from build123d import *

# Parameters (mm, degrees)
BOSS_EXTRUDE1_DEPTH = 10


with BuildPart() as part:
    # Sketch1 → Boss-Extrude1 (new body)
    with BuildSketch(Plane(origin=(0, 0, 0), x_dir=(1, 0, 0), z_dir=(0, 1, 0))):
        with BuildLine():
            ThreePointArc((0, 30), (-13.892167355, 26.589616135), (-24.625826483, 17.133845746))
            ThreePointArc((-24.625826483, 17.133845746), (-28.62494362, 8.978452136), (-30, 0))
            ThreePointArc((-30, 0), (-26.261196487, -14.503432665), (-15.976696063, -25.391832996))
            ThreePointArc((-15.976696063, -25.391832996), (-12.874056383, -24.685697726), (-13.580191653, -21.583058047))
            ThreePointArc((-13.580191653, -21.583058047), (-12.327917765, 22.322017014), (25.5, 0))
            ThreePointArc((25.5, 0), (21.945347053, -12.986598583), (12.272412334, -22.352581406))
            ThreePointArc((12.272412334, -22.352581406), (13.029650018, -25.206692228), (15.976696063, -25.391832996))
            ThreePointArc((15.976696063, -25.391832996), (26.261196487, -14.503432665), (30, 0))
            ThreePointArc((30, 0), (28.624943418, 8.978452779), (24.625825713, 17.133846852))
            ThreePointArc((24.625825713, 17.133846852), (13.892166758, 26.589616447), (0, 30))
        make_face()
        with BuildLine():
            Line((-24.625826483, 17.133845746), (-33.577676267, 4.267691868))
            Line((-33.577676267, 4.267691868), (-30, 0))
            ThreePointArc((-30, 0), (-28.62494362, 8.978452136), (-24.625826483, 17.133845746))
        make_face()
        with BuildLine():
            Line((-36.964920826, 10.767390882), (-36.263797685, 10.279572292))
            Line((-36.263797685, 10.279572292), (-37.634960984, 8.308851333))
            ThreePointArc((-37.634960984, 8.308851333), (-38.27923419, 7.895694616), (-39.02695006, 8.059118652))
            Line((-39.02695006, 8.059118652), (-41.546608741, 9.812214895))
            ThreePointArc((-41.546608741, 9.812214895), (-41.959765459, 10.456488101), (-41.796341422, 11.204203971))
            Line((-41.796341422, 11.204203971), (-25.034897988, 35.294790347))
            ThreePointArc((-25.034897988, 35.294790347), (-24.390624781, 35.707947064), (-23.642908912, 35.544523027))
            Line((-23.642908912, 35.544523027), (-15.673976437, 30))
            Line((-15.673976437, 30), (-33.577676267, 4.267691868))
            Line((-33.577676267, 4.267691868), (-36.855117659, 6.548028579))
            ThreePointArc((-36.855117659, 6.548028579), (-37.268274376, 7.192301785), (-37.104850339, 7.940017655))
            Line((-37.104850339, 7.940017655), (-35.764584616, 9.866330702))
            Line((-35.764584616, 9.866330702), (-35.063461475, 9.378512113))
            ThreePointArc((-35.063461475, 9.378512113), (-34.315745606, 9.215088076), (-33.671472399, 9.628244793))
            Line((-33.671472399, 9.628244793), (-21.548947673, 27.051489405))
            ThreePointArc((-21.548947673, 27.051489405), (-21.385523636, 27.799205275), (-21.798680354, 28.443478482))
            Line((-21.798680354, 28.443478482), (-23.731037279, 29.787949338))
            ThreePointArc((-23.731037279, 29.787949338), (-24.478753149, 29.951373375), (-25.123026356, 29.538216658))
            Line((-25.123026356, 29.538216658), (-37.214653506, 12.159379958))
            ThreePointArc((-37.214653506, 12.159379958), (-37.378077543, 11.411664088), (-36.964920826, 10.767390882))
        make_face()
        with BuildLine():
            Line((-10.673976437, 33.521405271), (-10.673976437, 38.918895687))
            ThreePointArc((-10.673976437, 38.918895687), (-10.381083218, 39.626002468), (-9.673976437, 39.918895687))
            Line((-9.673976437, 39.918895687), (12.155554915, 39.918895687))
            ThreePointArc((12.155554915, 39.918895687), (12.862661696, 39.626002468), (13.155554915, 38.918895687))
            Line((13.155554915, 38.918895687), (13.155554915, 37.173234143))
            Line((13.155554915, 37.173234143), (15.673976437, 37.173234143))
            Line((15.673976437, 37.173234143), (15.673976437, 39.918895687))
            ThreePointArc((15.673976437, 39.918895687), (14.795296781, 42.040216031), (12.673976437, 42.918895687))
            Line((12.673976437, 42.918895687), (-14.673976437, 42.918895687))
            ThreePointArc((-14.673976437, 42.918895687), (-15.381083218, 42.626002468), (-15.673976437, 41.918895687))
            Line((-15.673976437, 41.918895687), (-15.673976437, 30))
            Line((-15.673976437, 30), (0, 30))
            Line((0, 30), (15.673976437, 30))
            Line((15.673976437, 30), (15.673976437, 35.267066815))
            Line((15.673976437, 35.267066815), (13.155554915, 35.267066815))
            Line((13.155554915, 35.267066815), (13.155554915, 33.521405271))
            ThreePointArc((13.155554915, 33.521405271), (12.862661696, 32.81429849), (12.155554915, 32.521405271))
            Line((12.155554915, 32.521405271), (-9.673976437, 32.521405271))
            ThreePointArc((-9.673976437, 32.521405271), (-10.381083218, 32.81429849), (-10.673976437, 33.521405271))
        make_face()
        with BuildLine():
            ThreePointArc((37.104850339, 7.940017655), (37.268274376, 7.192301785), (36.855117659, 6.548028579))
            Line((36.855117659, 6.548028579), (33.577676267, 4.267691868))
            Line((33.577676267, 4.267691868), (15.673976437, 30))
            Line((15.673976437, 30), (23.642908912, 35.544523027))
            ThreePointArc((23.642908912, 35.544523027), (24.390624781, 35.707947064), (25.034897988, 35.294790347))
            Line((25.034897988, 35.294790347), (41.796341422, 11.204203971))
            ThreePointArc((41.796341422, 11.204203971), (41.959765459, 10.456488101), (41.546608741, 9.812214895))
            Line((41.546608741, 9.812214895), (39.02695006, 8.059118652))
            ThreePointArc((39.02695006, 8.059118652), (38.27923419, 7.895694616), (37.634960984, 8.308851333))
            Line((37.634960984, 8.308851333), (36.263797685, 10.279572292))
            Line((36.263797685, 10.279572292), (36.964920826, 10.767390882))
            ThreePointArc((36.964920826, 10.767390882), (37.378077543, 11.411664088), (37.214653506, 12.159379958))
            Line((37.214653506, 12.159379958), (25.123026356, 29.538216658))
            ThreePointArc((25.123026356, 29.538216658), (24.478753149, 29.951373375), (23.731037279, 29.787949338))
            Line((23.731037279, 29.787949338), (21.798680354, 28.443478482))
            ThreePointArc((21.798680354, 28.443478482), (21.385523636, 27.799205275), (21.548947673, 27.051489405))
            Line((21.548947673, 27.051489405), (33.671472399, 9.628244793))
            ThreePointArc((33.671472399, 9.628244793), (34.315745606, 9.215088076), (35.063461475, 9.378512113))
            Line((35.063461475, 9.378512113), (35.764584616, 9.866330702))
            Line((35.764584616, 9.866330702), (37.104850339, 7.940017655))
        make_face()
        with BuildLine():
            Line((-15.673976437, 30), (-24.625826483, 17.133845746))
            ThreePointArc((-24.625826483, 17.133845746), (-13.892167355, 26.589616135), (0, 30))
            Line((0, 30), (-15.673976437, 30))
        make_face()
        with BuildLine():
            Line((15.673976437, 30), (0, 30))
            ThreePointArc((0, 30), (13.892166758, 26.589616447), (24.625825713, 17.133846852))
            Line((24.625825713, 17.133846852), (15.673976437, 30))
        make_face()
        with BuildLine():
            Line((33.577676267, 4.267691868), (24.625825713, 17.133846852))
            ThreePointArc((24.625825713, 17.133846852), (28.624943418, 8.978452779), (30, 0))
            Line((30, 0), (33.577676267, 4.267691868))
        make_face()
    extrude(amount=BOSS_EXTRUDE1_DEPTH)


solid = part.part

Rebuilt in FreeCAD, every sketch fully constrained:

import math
import FreeCAD as App
import Part
import Sketcher
from FreeCAD import Vector
Q = App.Units.Quantity

doc = App.newDocument("Part")
params = doc.addObject("Spreadsheet::Sheet", "Params")
for row, (alias, value) in enumerate([
    ("sketch1_radius", "1 mm"),
    ("sketch1_radius2", "30 mm"),
    ("sketch1_radius3", "3 mm"),
    ("sketch1_radius4", "25.5 mm"),
    ("pad1_length", "10 mm"),
], start=1):
    params.set(f"A{row}", alias)
    params.set(f"B{row}", "=" + value)
    params.setAlias(f"B{row}", alias)

body = doc.addObject("PartDesign::Body", "Body")

# Sketch on XZ plane
sketch1 = doc.addObject("Sketcher::SketchObject", "Sketch")
body.addObject(sketch1)
sketch1.AttachmentSupport = (doc.XZ_Plane, [""])
sketch1.MapMode = "FlatFace"
sketch1.addGeometry([
    Part.LineSegment(Vector(-15.673976, -30, 0), Vector(-23.642909, -35.544523, 0)),  # 0
    Part.ArcOfCircle(Part.Circle(Vector(-24.214037, -34.723662, 0), Vector(0, 0, 1), 1), math.radians(-145.171064), math.radians(-55.171064)),  # 1
    Part.LineSegment(Vector(-25.034898, -35.29479, 0), Vector(-41.796341, -11.204204, 0)),  # 2
    Part.ArcOfCircle(Part.Circle(Vector(-40.975481, -10.633076, 0), Vector(0, 0, 1), 1), math.radians(124.828936), math.radians(214.828936)),  # 3
    Part.LineSegment(Vector(-41.546609, -9.812215, 0), Vector(-39.02695, -8.059119, 0)),  # 4
    Part.ArcOfCircle(Part.Circle(Vector(-38.455822, -8.87998, 0), Vector(0, 0, 1), 1), math.radians(34.828936), math.radians(124.828936)),  # 5
    Part.LineSegment(Vector(-37.634961, -8.308851, 0), Vector(-36.263798, -10.279572, 0)),  # 6
    Part.LineSegment(Vector(-36.263798, -10.279572, 0), Vector(-36.964921, -10.767391, 0)),  # 7
    Part.ArcOfCircle(Part.Circle(Vector(-36.393793, -11.588252, 0), Vector(0, 0, 1), 1), math.radians(124.828936), math.radians(214.828936)),  # 8
    Part.LineSegment(Vector(-37.214654, -12.15938, 0), Vector(-25.123026, -29.538217, 0)),  # 9
    Part.ArcOfCircle(Part.Circle(Vector(-24.302165, -28.967088, 0), Vector(0, 0, 1), 1), math.radians(-145.171064), math.radians(-55.171064)),  # 10
    Part.LineSegment(Vector(-23.731037, -29.787949, 0), Vector(-21.79868, -28.443478, 0)),  # 11
    Part.ArcOfCircle(Part.Circle(Vector(-22.369809, -27.622618, 0), Vector(0, 0, 1), 1), math.radians(-55.171064), math.radians(34.828936)),  # 12
    Part.LineSegment(Vector(-21.548948, -27.051489, 0), Vector(-33.671472, -9.628245, 0)),  # 13
    Part.ArcOfCircle(Part.Circle(Vector(-34.492333, -10.199373, 0), Vector(0, 0, 1), 1), math.radians(34.828936), math.radians(124.828936)),  # 14
    Part.LineSegment(Vector(-35.063461, -9.378512, 0), Vector(-35.764585, -9.866331, 0)),  # 15
    Part.LineSegment(Vector(-35.764585, -9.866331, 0), Vector(-37.10485, -7.940018, 0)),  # 16
    Part.ArcOfCircle(Part.Circle(Vector(-36.283989, -7.368889, 0), Vector(0, 0, 1), 1), math.radians(124.828936), math.radians(214.828936)),  # 17
    Part.LineSegment(Vector(-36.855118, -6.548029, 0), Vector(-33.577676, -4.267692, 0)),  # 18
    Part.LineSegment(Vector(-33.577676, -4.267692, 0), Vector(-30, 0, 0)),  # 19
    Part.ArcOfCircle(Part.Circle(Vector(0, 0, 0), Vector(0, 0, 1), 30), math.radians(122.178353), math.radians(180)),  # 20
    Part.ArcOfCircle(Part.Circle(Vector(-14.778444, 23.487446, 0), Vector(0, 0, 1), 2.25), math.radians(-57.821647), math.radians(122.178353)),  # 21
    Part.ArcOfCircle(Part.Circle(Vector(0, 0, 0), Vector(0, 0, 1), 25.5), math.radians(122.178353), math.radians(360)),  # 22
    Part.ArcOfCircle(Part.Circle(Vector(0, 0, 0), Vector(0, 0, 1), 25.5), math.radians(0), math.radians(61.231549)),  # 23
    Part.ArcOfCircle(Part.Circle(Vector(14.631652, 23.254149, 0), Vector(0, 0, 1), 2.525636), math.radians(57.821647), math.radians(200.914016)),  # 24
    Part.ArcOfCircle(Part.Circle(Vector(0, 0, 0), Vector(0, 0, 1), 30), math.radians(0), math.radians(57.821647)),  # 25
    Part.LineSegment(Vector(30, 0, 0), Vector(33.577676, -4.267692, 0)),  # 26
    Part.LineSegment(Vector(33.577676, -4.267692, 0), Vector(36.855118, -6.548029, 0)),  # 27
    Part.ArcOfCircle(Part.Circle(Vector(36.283989, -7.368889, 0), Vector(0, 0, 1), 1), math.radians(-34.828936), math.radians(55.171064)),  # 28
    Part.LineSegment(Vector(37.10485, -7.940018, 0), Vector(35.764585, -9.866331, 0)),  # 29
    Part.LineSegment(Vector(35.764585, -9.866331, 0), Vector(35.063461, -9.378512, 0)),  # 30
    Part.ArcOfCircle(Part.Circle(Vector(34.492333, -10.199373, 0), Vector(0, 0, 1), 1), math.radians(55.171064), math.radians(145.171064)),  # 31
    Part.LineSegment(Vector(33.671472, -9.628245, 0), Vector(21.548948, -27.051489, 0)),  # 32
    Part.ArcOfCircle(Part.Circle(Vector(22.369809, -27.622618, 0), Vector(0, 0, 1), 1), math.radians(145.171064), math.radians(235.171064)),  # 33
    Part.LineSegment(Vector(21.79868, -28.443478, 0), Vector(23.731037, -29.787949, 0)),  # 34
    Part.ArcOfCircle(Part.Circle(Vector(24.302165, -28.967088, 0), Vector(0, 0, 1), 1), math.radians(-124.828936), math.radians(-34.828936)),  # 35
    Part.LineSegment(Vector(25.123026, -29.538217, 0), Vector(37.214654, -12.15938, 0)),  # 36
    Part.ArcOfCircle(Part.Circle(Vector(36.393793, -11.588252, 0), Vector(0, 0, 1), 1), math.radians(-34.828936), math.radians(55.171064)),  # 37
    Part.LineSegment(Vector(36.964921, -10.767391, 0), Vector(36.263798, -10.279572, 0)),  # 38
    Part.LineSegment(Vector(36.263798, -10.279572, 0), Vector(37.634961, -8.308851, 0)),  # 39
    Part.ArcOfCircle(Part.Circle(Vector(38.455822, -8.87998, 0), Vector(0, 0, 1), 1), math.radians(55.171064), math.radians(145.171064)),  # 40
    Part.LineSegment(Vector(39.02695, -8.059119, 0), Vector(41.546609, -9.812215, 0)),  # 41
    Part.ArcOfCircle(Part.Circle(Vector(40.975481, -10.633076, 0), Vector(0, 0, 1), 1), math.radians(-34.828936), math.radians(55.171064)),  # 42
    Part.LineSegment(Vector(41.796341, -11.204204, 0), Vector(25.034898, -35.29479, 0)),  # 43
    Part.ArcOfCircle(Part.Circle(Vector(24.214037, -34.723662, 0), Vector(0, 0, 1), 1), math.radians(-124.828936), math.radians(-34.828936)),  # 44
    Part.LineSegment(Vector(23.642909, -35.544523, 0), Vector(15.673976, -30, 0)),  # 45
    Part.LineSegment(Vector(15.673976, -30, 0), Vector(15.673976, -35.267067, 0)),  # 46
    Part.LineSegment(Vector(15.673976, -35.267067, 0), Vector(13.155555, -35.267067, 0)),  # 47
    Part.LineSegment(Vector(13.155555, -35.267067, 0), Vector(13.155555, -33.521405, 0)),  # 48
    Part.ArcOfCircle(Part.Circle(Vector(12.155555, -33.521405, 0), Vector(0, 0, 1), 1), math.radians(0), math.radians(90)),  # 49
    Part.LineSegment(Vector(12.155555, -32.521405, 0), Vector(-9.673976, -32.521405, 0)),  # 50
    Part.ArcOfCircle(Part.Circle(Vector(-9.673976, -33.521405, 0), Vector(0, 0, 1), 1), math.radians(90), math.radians(180)),  # 51
    Part.LineSegment(Vector(-10.673976, -33.521405, 0), Vector(-10.673976, -38.918896, 0)),  # 52
    Part.ArcOfCircle(Part.Circle(Vector(-9.673976, -38.918896, 0), Vector(0, 0, 1), 1), math.radians(-180), math.radians(-90)),  # 53
    Part.LineSegment(Vector(-9.673976, -39.918896, 0), Vector(12.155555, -39.918896, 0)),  # 54
    Part.ArcOfCircle(Part.Circle(Vector(12.155555, -38.918896, 0), Vector(0, 0, 1), 1), math.radians(-90), math.radians(0)),  # 55
    Part.LineSegment(Vector(13.155555, -38.918896, 0), Vector(13.155555, -37.173234, 0)),  # 56
    Part.LineSegment(Vector(13.155555, -37.173234, 0), Vector(15.673976, -37.173234, 0)),  # 57
    Part.LineSegment(Vector(15.673976, -37.173234, 0), Vector(15.673976, -39.918896, 0)),  # 58
    Part.ArcOfCircle(Part.Circle(Vector(12.673976, -39.918896, 0), Vector(0, 0, 1), 3), math.radians(-90), math.radians(0)),  # 59
    Part.LineSegment(Vector(12.673976, -42.918896, 0), Vector(-14.673976, -42.918896, 0)),  # 60
    Part.ArcOfCircle(Part.Circle(Vector(-14.673976, -41.918896, 0), Vector(0, 0, 1), 1), math.radians(-180), math.radians(-90)),  # 61
    Part.LineSegment(Vector(-15.673976, -41.918896, 0), Vector(-15.673976, -30, 0)),  # 62
], False)
sketch1.addConstraint([
    Sketcher.Constraint("Tangent", 0, 2, 1, 2),
    Sketcher.Constraint("Tangent", 1, 1, 2, 1),
    Sketcher.Constraint("Tangent", 2, 2, 3, 2),
    Sketcher.Constraint("Tangent", 3, 1, 4, 1),
    Sketcher.Constraint("Tangent", 4, 2, 5, 2),
    Sketcher.Constraint("Tangent", 5, 1, 6, 1),
    Sketcher.Constraint("Coincident", 6, 2, 7, 1),
    Sketcher.Constraint("Tangent", 7, 2, 8, 1),
    Sketcher.Constraint("Tangent", 8, 2, 9, 1),
    Sketcher.Constraint("Tangent", 9, 2, 10, 1),
    Sketcher.Constraint("Tangent", 10, 2, 11, 1),
    Sketcher.Constraint("Tangent", 11, 2, 12, 1),
    Sketcher.Constraint("Tangent", 12, 2, 13, 1),
    Sketcher.Constraint("Tangent", 13, 2, 14, 1),
    Sketcher.Constraint("Tangent", 14, 2, 15, 1),
    Sketcher.Constraint("Coincident", 15, 2, 16, 1),
    Sketcher.Constraint("Tangent", 16, 2, 17, 2),
    Sketcher.Constraint("Tangent", 17, 1, 18, 1),
    Sketcher.Constraint("Coincident", 18, 2, 19, 1),
    Sketcher.Constraint("Coincident", 19, 2, 20, 2),
    Sketcher.Constraint("Tangent", 20, 1, 21, 2),
    Sketcher.Constraint("Tangent", 21, 1, 22, 1),
    Sketcher.Constraint("Tangent", 22, 2, 23, 1),
    Sketcher.Constraint("Coincident", 23, 2, 24, 2),
    Sketcher.Constraint("Tangent", 24, 1, 25, 2),
    Sketcher.Constraint("Coincident", 25, 1, 26, 1),
    Sketcher.Constraint("Coincident", 26, 2, 27, 1),
    Sketcher.Constraint("Tangent", 27, 2, 28, 2),
    Sketcher.Constraint("Tangent", 28, 1, 29, 1),
    Sketcher.Constraint("Coincident", 29, 2, 30, 1),
    Sketcher.Constraint("Tangent", 30, 2, 31, 1),
    Sketcher.Constraint("Tangent", 31, 2, 32, 1),
    Sketcher.Constraint("Tangent", 32, 2, 33, 1),
    Sketcher.Constraint("Tangent", 33, 2, 34, 1),
    Sketcher.Constraint("Tangent", 34, 2, 35, 1),
    Sketcher.Constraint("Tangent", 35, 2, 36, 1),
    Sketcher.Constraint("Tangent", 36, 2, 37, 1),
    Sketcher.Constraint("Tangent", 37, 2, 38, 1),
    Sketcher.Constraint("Coincident", 38, 2, 39, 1),
    Sketcher.Constraint("Tangent", 39, 2, 40, 2),
    Sketcher.Constraint("Tangent", 40, 1, 41, 1),
    Sketcher.Constraint("Tangent", 41, 2, 42, 2),
    Sketcher.Constraint("Tangent", 42, 1, 43, 1),
    Sketcher.Constraint("Tangent", 43, 2, 44, 2),
    Sketcher.Constraint("Tangent", 44, 1, 45, 1),
    Sketcher.Constraint("Coincident", 45, 2, 46, 1),
    Sketcher.Constraint("Coincident", 46, 2, 47, 1),
    Sketcher.Constraint("Coincident", 47, 2, 48, 1),
    Sketcher.Constraint("Tangent", 48, 2, 49, 1),
    Sketcher.Constraint("Tangent", 49, 2, 50, 1),
    Sketcher.Constraint("Tangent", 50, 2, 51, 1),
    Sketcher.Constraint("Tangent", 51, 2, 52, 1),
    Sketcher.Constraint("Tangent", 52, 2, 53, 1),
    Sketcher.Constraint("Tangent", 53, 2, 54, 1),
    Sketcher.Constraint("Tangent", 54, 2, 55, 1),
    Sketcher.Constraint("Tangent", 55, 2, 56, 1),
    Sketcher.Constraint("Coincident", 56, 2, 57, 1),
    Sketcher.Constraint("Coincident", 57, 2, 58, 1),
    Sketcher.Constraint("Tangent", 58, 2, 59, 2),
    Sketcher.Constraint("Tangent", 59, 1, 60, 1),
    Sketcher.Constraint("Tangent", 60, 2, 61, 2),
    Sketcher.Constraint("Tangent", 61, 1, 62, 1),
    Sketcher.Constraint("Coincident", 62, 2, 0, 1),
    Sketcher.Constraint("Vertical", 46),
    Sketcher.Constraint("Horizontal", 47),
    Sketcher.Constraint("Vertical", 48),
    Sketcher.Constraint("Horizontal", 50),
    Sketcher.Constraint("Vertical", 52),
    Sketcher.Constraint("Horizontal", 54),
    Sketcher.Constraint("Vertical", 56),
    Sketcher.Constraint("Horizontal", 57),
    Sketcher.Constraint("Vertical", 58),
    Sketcher.Constraint("Horizontal", 60),
    Sketcher.Constraint("Vertical", 62),
    Sketcher.Constraint("Coincident", 20, 3, -1, 1),
    Sketcher.Constraint("Coincident", 22, 3, -1, 1),
    Sketcher.Constraint("Coincident", 25, 3, -1, 1),
    Sketcher.Constraint("Equal", 1, 3),
    Sketcher.Constraint("Equal", 3, 5),
    Sketcher.Constraint("Equal", 5, 8),
    Sketcher.Constraint("Equal", 8, 10),
    Sketcher.Constraint("Equal", 10, 12),
    Sketcher.Constraint("Equal", 12, 14),
    Sketcher.Constraint("Equal", 14, 17),
    Sketcher.Constraint("Equal", 22, 23),
    Sketcher.Constraint("Equal", 20, 25),
    Sketcher.Constraint("Equal", 17, 28),
    Sketcher.Constraint("Equal", 28, 31),
    Sketcher.Constraint("Equal", 31, 33),
    Sketcher.Constraint("Equal", 33, 35),
    Sketcher.Constraint("Equal", 35, 37),
    Sketcher.Constraint("Equal", 37, 40),
    Sketcher.Constraint("Equal", 40, 42),
    Sketcher.Constraint("Equal", 42, 44),
    Sketcher.Constraint("Equal", 44, 49),
    Sketcher.Constraint("Equal", 49, 51),
    Sketcher.Constraint("Equal", 51, 53),
    Sketcher.Constraint("Equal", 53, 55),
    Sketcher.Constraint("Equal", 55, 61),
    Sketcher.Constraint("Symmetric", 17, 3, 28, 3, -2),
    Sketcher.Constraint("Symmetric", 14, 3, 31, 3, -2),
    Sketcher.Constraint("Symmetric", 12, 3, 33, 3, -2),
    Sketcher.Constraint("Symmetric", 10, 3, 35, 3, -2),
    Sketcher.Constraint("Symmetric", 8, 3, 37, 3, -2),
    Sketcher.Constraint("Symmetric", 5, 3, 40, 3, -2),
    Sketcher.Constraint("Symmetric", 3, 3, 42, 3, -2),
    Sketcher.Constraint("Symmetric", 1, 3, 44, 3, -2),
    Sketcher.Constraint("Symmetric", 18, 2, 26, 2, -2),
    Sketcher.Constraint("Symmetric", 15, 2, 29, 2, -2),
    Sketcher.Constraint("Symmetric", 6, 2, 38, 2, -2),
    Sketcher.Constraint("Symmetric", 45, 2, 62, 2, -2),
    Sketcher.Constraint("PointOnObject", 19, 2, -1),
    Sketcher.Constraint("PointOnObject", 22, 2, -1),
    Sketcher.Constraint("PointOnObject", 25, 1, -1),
    Sketcher.Constraint("Perpendicular", 0, 2),
    Sketcher.Constraint("Perpendicular", 2, 4),
    Sketcher.Constraint("Perpendicular", 4, 6),
    Sketcher.Constraint("Perpendicular", 6, 7),
    Sketcher.Constraint("Perpendicular", 7, 9),
    Sketcher.Constraint("Perpendicular", 9, 11),
    Sketcher.Constraint("Perpendicular", 11, 13),
    Sketcher.Constraint("Perpendicular", 13, 15),
    Sketcher.Constraint("Perpendicular", 15, 16),
    Sketcher.Constraint("Perpendicular", 16, 18),
    Sketcher.Constraint("Horizontal", 20, 1, 24, 1),
    Sketcher.Constraint("Horizontal", 59, 3, 53, 2),
    Sketcher.Constraint("Vertical", 49, 3, 55, 3),
    Sketcher.Constraint("Vertical", 46, 2, 57, 2),
    Sketcher.Constraint("Equal", 48, 56),
    Sketcher.Constraint("Equal", 7, 15),
    Sketcher.Constraint("Radius", 1, Q("1 mm")),
    Sketcher.Constraint("Radius", 20, Q("30 mm")),
    Sketcher.Constraint("Radius", 59, Q("3 mm")),
    Sketcher.Constraint("Radius", 22, Q("25.5 mm")),
    Sketcher.Constraint("DistanceY", 45, 2, -1, 1, Q("30 mm")),
    Sketcher.Constraint("Radius", 24, Q("2.525636 mm")),
    Sketcher.Constraint("Distance", 16, Q("2.346699 mm")),
    Sketcher.Constraint("DistanceX", 47, 2, 47, 1, Q("2.518422 mm")),
    Sketcher.Constraint("DistanceX", 50, 2, 50, 1, Q("21.829531 mm")),
    Sketcher.Constraint("DistanceY", 48, 1, 48, 2, Q("1.745662 mm")),
    Sketcher.Constraint("DistanceY", 52, 2, 52, 1, Q("5.39749 mm")),
    Sketcher.Constraint("Distance", 0, Q("9.708018 mm")),
    Sketcher.Constraint("Distance", 4, Q("3.069532 mm")),
    Sketcher.Constraint("Distance", 7, Q("0.854132 mm")),
    Sketcher.Constraint("Distance", 11, Q("2.354061 mm")),
    Sketcher.Constraint("Distance", 18, Q("3.992688 mm")),
    Sketcher.Constraint("Distance", 19, Q("5.568928 mm")),
    Sketcher.Constraint("DistanceX", 60, 2, 60, 1, Q("27.347953 mm")),
    Sketcher.Constraint("DistanceY", 46, 2, 46, 1, Q("5.267067 mm")),
    Sketcher.Constraint("DistanceX", 3, 3, -1, 1, Q("40.975481 mm")),
    Sketcher.Constraint("DistanceX", 5, 3, -1, 1, Q("38.455822 mm")),
    Sketcher.Constraint("DistanceY", 8, 3, -1, 1, Q("11.588252 mm")),
    Sketcher.Constraint("DistanceY", 10, 3, -1, 1, Q("28.967088 mm")),
    Sketcher.Constraint("DistanceY", -1, 1, 24, 3, Q("23.254149 mm")),
])
sketch1.setExpression("Constraints[130]", "Params.sketch1_radius")
sketch1.setExpression("Constraints[131]", "Params.sketch1_radius2")
sketch1.setExpression("Constraints[132]", "Params.sketch1_radius3")
sketch1.setExpression("Constraints[133]", "Params.sketch1_radius4")
pad1 = doc.addObject("PartDesign::Pad", "Pad")
body.addObject(pad1)
pad1.Profile = sketch1
pad1.setExpression("Length", "Params.pad1_length")
pad1.Reversed = True

doc.recompute()
